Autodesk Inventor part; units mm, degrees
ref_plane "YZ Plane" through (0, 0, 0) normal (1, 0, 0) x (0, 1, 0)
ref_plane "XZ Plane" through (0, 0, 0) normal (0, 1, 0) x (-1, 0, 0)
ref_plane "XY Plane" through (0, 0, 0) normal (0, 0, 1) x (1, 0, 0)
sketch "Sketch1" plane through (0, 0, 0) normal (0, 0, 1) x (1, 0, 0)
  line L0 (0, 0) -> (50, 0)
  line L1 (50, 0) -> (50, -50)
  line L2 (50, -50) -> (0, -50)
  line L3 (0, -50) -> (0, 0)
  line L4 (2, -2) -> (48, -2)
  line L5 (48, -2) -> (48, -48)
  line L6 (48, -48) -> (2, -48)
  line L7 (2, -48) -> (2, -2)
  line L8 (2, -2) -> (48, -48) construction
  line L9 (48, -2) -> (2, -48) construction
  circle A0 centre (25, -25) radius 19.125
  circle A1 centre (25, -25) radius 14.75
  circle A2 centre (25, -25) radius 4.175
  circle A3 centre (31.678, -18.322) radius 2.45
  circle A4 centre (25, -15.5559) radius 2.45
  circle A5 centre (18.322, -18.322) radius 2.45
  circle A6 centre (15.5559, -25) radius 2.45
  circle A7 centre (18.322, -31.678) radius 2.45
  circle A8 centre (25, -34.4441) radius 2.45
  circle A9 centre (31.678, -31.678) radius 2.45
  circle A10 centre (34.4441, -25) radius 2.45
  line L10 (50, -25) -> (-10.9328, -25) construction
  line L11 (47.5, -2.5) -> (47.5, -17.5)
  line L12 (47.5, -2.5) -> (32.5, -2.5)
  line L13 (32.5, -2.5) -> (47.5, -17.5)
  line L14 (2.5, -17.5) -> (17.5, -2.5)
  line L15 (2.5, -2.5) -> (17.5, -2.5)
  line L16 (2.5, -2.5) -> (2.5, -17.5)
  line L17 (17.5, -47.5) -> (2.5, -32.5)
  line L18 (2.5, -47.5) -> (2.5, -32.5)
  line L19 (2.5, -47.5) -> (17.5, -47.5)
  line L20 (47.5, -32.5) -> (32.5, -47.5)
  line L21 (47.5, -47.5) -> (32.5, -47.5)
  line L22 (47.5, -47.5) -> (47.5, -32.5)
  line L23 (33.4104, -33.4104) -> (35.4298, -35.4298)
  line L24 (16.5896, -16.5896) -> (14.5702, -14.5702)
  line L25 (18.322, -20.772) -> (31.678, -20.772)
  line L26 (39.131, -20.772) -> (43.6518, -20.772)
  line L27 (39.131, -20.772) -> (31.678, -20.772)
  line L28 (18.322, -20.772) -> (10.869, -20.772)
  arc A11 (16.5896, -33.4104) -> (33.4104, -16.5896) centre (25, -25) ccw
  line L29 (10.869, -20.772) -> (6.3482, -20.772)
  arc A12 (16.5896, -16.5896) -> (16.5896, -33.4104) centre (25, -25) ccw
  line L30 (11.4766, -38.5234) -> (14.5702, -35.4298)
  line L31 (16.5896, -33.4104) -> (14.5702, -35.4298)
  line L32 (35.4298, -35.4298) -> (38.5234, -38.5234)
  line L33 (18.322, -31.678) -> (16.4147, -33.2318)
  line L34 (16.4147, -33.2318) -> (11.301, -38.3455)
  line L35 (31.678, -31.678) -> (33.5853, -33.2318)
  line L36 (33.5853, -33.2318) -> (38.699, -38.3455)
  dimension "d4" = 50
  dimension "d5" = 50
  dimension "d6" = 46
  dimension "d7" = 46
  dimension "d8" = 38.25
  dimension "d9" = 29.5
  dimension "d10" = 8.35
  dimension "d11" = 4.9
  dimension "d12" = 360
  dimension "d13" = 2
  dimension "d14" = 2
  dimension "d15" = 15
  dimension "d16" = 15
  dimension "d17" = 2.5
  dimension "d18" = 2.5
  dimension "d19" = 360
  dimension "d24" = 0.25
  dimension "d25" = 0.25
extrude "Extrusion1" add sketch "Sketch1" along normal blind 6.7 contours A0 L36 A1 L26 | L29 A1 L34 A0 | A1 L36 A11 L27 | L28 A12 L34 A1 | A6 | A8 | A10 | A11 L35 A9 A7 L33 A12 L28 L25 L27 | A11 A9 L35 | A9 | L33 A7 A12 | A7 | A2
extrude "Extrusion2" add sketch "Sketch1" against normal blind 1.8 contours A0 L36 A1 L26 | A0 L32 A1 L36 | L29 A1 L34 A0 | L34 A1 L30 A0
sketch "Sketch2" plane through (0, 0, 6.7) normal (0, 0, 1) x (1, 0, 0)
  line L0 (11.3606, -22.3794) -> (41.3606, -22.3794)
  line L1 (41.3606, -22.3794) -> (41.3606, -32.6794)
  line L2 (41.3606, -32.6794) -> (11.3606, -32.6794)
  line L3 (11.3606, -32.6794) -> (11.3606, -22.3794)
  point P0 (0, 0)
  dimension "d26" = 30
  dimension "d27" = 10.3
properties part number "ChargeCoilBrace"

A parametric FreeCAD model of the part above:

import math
import FreeCAD as App
import Part
import Sketcher

V = App.Vector

doc = App.newDocument("Part")
body = doc.addObject("PartDesign::Body", "Body")

# Sketch on XY plane
sketch1 = body.newObject("Sketcher::SketchObject", "Sketch")
sketch1.AttachmentSupport = (doc.getObject("XY_Plane"), [""])
sketch1.MapMode = "FlatFace"
sketch1.addGeometry(Part.ArcOfCircle(Part.Circle(V(25, -25, 0), V(0, 0, 1), 19), math.radians(-44), math.radians(13)), False)
sketch1.addGeometry(Part.LineSegment(V(44, -21, 0), V(6, -21, 0)), False)
sketch1.addGeometry(Part.ArcOfCircle(Part.Circle(V(25, -25, 0), V(0, 0, 1), 19), math.radians(167), math.radians(224)), False)
sketch1.addGeometry(Part.LineSegment(V(11, -38, 0), V(16, -33, 0)), False)
sketch1.addGeometry(Part.ArcOfCircle(Part.Circle(V(25, -25, 0), V(0, 0, 1), 12), math.radians(-136), math.radians(-44)), False)
sketch1.addGeometry(Part.LineSegment(V(34, -33, 0), V(39, -38, 0)), False)
sketch1.addConstraint(Sketcher.Constraint("Coincident", 0, 2, 1, 1))
sketch1.addConstraint(Sketcher.Constraint("Coincident", 1, 2, 2, 1))
sketch1.addConstraint(Sketcher.Constraint("Coincident", 2, 2, 3, 1))
sketch1.addConstraint(Sketcher.Constraint("Coincident", 3, 2, 4, 1))
sketch1.addConstraint(Sketcher.Constraint("Coincident", 4, 2, 5, 1))
sketch1.addConstraint(Sketcher.Constraint("Coincident", 5, 2, 0, 1))
sketch1.addConstraint(Sketcher.Constraint("Horizontal", 1))
sketch1.addConstraint(Sketcher.Constraint("Coincident", 2, 3, 0, 3))
sketch1.addConstraint(Sketcher.Constraint("Coincident", 4, 3, 0, 3))
sketch1.addConstraint(Sketcher.Constraint("Equal", 0, 2))
sketch1.addConstraint(Sketcher.Constraint("Perpendicular", 3, 5))
sketch1.addConstraint(Sketcher.Constraint("Horizontal", 3, 2, 4, 2))
sketch1.addConstraint(Sketcher.Constraint("Horizontal", 2, 2, 5, 2))
sketch1.addConstraint(Sketcher.Constraint("Radius", 0, 19.125))
sketch1.addConstraint(Sketcher.Constraint("DistanceX", -1, 1, 0, 3, 25.0))
sketch1.addConstraint(Sketcher.Constraint("DistanceY", 0, 3, -1, 1, 25.0))
sketch1.addConstraint(Sketcher.Constraint("Radius", 4, 11.894))
sketch1.addConstraint(Sketcher.Constraint("DistanceX", 1, 2, 1, 1, 37.3036))
sketch1.addConstraint(Sketcher.Constraint("DistanceX", -1, 1, 2, 2, 11.301))
pad1 = body.newObject("PartDesign::Pad", "Pad")
pad1.Profile = sketch1
pad1.Length = 6.7

# Sketch on XY plane
sketch2 = body.newObject("Sketcher::SketchObject", "Sketch001")
sketch2.AttachmentSupport = (doc.getObject("XY_Plane"), [""])
sketch2.MapMode = "FlatFace"
sketch2.addGeometry(Part.LineSegment(V(43.7, -20.8, 0), V(39.1, -20.8, 0)), False)
sketch2.addGeometry(Part.ArcOfCircle(Part.Circle(V(25, -25, 0), V(0, 0, 1), 14.8), math.radians(-45), math.radians(17)), False)
sketch2.addGeometry(Part.LineSegment(V(35.4, -35.4, 0), V(38.5, -38.5, 0)), False)
sketch2.addGeometry(Part.ArcOfCircle(Part.Circle(V(25, -25, 0), V(0, 0, 1), 19.1), math.radians(-45), math.radians(13)), False)
sketch2.addGeometry(Part.LineSegment(V(10.9, -20.8, 0), V(6.3, -20.8, 0)), False)
sketch2.addGeometry(Part.ArcOfCircle(Part.Circle(V(25, -25, 0), V(0, 0, 1), 19.1), math.radians(167), math.radians(225)), False)
sketch2.addGeometry(Part.LineSegment(V(11.5, -38.5, 0), V(14.6, -35.4, 0)), False)
sketch2.addGeometry(Part.ArcOfCircle(Part.Circle(V(25, -25, 0), V(0, 0, 1), 14.8), math.radians(163), math.radians(225)), False)
sketch2.addConstraint(Sketcher.Constraint("Coincident", 0, 2, 1, 2))
sketch2.addConstraint(Sketcher.Constraint("Coincident", 1, 1, 2, 1))
sketch2.addConstraint(Sketcher.Constraint("Coincident", 2, 2, 3, 1))
sketch2.addConstraint(Sketcher.Constraint("Coincident", 3, 2, 0, 1))
sketch2.addConstraint(Sketcher.Constraint("Coincident", 4, 2, 5, 1))
sketch2.addConstraint(Sketcher.Constraint("Coincident", 5, 2, 6, 1))
sketch2.addConstraint(Sketcher.Constraint("Coincident", 6, 2, 7, 2))
sketch2.addConstraint(Sketcher.Constraint("Coincident", 7, 1, 4, 1))
sketch2.addConstraint(Sketcher.Constraint("Horizontal", 0))
sketch2.addConstraint(Sketcher.Constraint("Horizontal", 4))
sketch2.addConstraint(Sketcher.Constraint("Coincident", 3, 3, 1, 3))
sketch2.addConstraint(Sketcher.Constraint("Coincident", 5, 3, 1, 3))
sketch2.addConstraint(Sketcher.Constraint("Coincident", 7, 3, 1, 3))
sketch2.addConstraint(Sketcher.Constraint("Equal", 3, 5))
sketch2.addConstraint(Sketcher.Constraint("Equal", 1, 7))
sketch2.addConstraint(Sketcher.Constraint("Perpendicular", 2, 6))
sketch2.addConstraint(Sketcher.Constraint("Horizontal", 3, 2, 4, 2))
sketch2.addConstraint(Sketcher.Constraint("Horizontal", 2, 2, 5, 2))
sketch2.addConstraint(Sketcher.Constraint("Horizontal", 1, 1, 6, 2))
sketch2.addConstraint(Sketcher.Constraint("Radius", 1, 14.75))
sketch2.addConstraint(Sketcher.Constraint("Radius", 3, 19.125))
sketch2.addConstraint(Sketcher.Constraint("DistanceX", -1, 1, 1, 3, 25.0))
sketch2.addConstraint(Sketcher.Constraint("DistanceY", 1, 3, -1, 1, 25.0))
sketch2.addConstraint(Sketcher.Constraint("DistanceX", 0, 2, 0, 1, 4.5208))
sketch2.addConstraint(Sketcher.Constraint("DistanceX", 1, 1, 3, 2, 8.222))
pad2 = body.newObject("PartDesign::Pad", "Pad001")
pad2.Profile = sketch2
pad2.Length = 1.8
pad2.Reversed = True

doc.recompute()
